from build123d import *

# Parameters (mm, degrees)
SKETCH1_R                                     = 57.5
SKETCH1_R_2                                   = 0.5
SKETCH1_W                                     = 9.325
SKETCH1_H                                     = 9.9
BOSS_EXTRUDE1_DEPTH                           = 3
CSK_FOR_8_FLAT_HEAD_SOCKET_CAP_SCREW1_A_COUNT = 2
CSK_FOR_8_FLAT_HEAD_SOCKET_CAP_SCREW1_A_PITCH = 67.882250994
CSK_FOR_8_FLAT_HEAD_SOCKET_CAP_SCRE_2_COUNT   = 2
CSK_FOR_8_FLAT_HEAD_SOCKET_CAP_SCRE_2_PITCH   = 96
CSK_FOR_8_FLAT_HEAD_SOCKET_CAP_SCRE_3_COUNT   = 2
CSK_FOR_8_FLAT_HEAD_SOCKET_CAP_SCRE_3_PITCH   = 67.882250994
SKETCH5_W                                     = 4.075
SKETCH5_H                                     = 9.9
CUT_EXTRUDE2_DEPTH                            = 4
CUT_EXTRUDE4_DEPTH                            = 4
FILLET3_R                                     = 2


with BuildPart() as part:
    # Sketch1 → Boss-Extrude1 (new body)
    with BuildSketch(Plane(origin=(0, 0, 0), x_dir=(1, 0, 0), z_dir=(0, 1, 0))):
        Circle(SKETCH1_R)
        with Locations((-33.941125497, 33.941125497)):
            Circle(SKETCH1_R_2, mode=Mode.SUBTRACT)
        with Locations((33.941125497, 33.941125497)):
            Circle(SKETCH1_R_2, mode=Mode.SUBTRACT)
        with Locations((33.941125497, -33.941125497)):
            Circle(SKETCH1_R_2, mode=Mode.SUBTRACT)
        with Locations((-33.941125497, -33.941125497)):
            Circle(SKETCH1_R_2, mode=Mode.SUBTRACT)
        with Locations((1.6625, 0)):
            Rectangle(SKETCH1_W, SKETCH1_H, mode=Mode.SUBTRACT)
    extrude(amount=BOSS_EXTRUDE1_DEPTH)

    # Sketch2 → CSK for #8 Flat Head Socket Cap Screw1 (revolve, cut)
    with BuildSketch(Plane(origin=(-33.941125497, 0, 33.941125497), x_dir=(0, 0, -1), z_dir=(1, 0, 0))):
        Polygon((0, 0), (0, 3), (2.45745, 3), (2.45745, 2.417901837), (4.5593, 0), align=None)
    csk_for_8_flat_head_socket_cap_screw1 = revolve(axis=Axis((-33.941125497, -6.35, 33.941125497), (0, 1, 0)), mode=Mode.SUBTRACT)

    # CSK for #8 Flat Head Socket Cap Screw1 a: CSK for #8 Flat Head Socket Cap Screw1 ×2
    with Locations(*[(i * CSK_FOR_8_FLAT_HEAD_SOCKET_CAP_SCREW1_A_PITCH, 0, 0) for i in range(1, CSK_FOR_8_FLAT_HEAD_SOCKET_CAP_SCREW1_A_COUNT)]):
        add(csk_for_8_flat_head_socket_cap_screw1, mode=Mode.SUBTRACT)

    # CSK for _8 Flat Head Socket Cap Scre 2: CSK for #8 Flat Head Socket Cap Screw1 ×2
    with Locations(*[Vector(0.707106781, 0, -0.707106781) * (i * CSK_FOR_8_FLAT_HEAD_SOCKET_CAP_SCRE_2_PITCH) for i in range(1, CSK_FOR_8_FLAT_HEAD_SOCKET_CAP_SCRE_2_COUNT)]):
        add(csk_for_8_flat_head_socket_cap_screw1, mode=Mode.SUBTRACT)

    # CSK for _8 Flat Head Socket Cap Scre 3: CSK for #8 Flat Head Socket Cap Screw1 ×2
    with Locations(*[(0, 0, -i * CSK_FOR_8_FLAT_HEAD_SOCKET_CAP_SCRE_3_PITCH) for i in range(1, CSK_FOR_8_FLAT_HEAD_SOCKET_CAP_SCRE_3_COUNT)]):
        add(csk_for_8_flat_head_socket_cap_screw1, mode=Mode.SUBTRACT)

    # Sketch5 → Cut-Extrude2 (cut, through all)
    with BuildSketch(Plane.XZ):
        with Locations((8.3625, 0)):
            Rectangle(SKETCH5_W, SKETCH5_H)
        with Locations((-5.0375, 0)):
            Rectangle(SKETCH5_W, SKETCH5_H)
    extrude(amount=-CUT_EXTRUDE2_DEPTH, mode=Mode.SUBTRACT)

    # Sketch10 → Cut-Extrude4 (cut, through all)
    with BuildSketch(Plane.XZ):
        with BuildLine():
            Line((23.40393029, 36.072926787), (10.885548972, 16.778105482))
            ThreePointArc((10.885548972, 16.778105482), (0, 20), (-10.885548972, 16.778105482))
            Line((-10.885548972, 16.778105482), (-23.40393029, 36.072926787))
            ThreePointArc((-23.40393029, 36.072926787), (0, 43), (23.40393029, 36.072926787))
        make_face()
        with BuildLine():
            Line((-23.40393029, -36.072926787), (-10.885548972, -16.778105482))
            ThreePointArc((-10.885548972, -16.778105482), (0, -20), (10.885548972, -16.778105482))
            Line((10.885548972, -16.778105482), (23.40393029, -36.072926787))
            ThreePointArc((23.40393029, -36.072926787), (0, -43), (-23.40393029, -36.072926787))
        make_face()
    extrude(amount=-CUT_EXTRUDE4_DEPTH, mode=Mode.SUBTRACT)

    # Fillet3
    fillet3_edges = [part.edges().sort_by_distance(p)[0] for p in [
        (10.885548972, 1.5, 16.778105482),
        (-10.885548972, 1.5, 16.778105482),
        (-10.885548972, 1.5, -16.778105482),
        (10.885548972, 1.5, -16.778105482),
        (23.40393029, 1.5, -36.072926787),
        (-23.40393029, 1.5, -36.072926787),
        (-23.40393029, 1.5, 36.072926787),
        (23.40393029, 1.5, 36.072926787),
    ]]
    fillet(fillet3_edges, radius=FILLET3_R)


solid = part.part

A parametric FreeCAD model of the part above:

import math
import FreeCAD as App
import Part
import Sketcher

V = App.Vector
Q = App.Units.Quantity


def edges_at(feature, points):
    """Names of the edges that pass closest to the given points."""
    edges = feature.Shape.Edges
    near = lambda p: min(range(len(edges)), key=lambda i: edges[i].distToShape(Part.Vertex(*p))[0])
    return sorted({f"Edge{near(p) + 1}" for p in points})

doc = App.newDocument("Part")
body = doc.addObject("PartDesign::Body", "Body")

# Sketch on XZ plane
sketch1 = body.newObject("Sketcher::SketchObject", "Sketch")
sketch1.AttachmentSupport = (doc.getObject("XZ_Plane"), [""])
sketch1.MapMode = "FlatFace"
sketch1.addGeometry(Part.Circle(V(0, 0, 0), V(0, 0, 1), 57.5), False)
sketch1.addGeometry(Part.Circle(V(-33.9, 33.9, 0), V(0, 0, 1), 0.5), False)
sketch1.addGeometry(Part.Circle(V(33.9, 33.9, 0), V(0, 0, 1), 0.5), False)
sketch1.addGeometry(Part.Circle(V(-33.9, -33.9, 0), V(0, 0, 1), 0.5), False)
sketch1.addGeometry(Part.LineSegment(V(6.3, 5, 0), V(-3, 5, 0)), False)
sketch1.addGeometry(Part.LineSegment(V(-3, 5, 0), V(-3, -5, 0)), False)
sketch1.addGeometry(Part.LineSegment(V(-3, -5, 0), V(6.3, -5, 0)), False)
sketch1.addGeometry(Part.LineSegment(V(6.3, -5, 0), V(6.3, 5, 0)), False)
sketch1.addGeometry(Part.Circle(V(33.9, -33.9, 0), V(0, 0, 1), 0.5), False)
sketch1.addConstraint(Sketcher.Constraint("Coincident", 4, 2, 5, 1))
sketch1.addConstraint(Sketcher.Constraint("Coincident", 5, 2, 6, 1))
sketch1.addConstraint(Sketcher.Constraint("Coincident", 6, 2, 7, 1))
sketch1.addConstraint(Sketcher.Constraint("Coincident", 7, 2, 4, 1))
sketch1.addConstraint(Sketcher.Constraint("Horizontal", 4))
sketch1.addConstraint(Sketcher.Constraint("Vertical", 5))
sketch1.addConstraint(Sketcher.Constraint("Horizontal", 6))
sketch1.addConstraint(Sketcher.Constraint("Vertical", 7))
sketch1.addConstraint(Sketcher.Constraint("Coincident", 0, 3, -1, 1))
sketch1.addConstraint(Sketcher.Constraint("Equal", 1, 2))
sketch1.addConstraint(Sketcher.Constraint("Equal", 2, 3))
sketch1.addConstraint(Sketcher.Constraint("Equal", 3, 8))
sketch1.addConstraint(Sketcher.Constraint("Symmetric", 2, 3, 3, 3, -1, 1))
sketch1.addConstraint(Sketcher.Constraint("Symmetric", 1, 3, 8, 3, -1, 1))
sketch1.addConstraint(Sketcher.Constraint("Symmetric", 1, 3, 2, 3, -2))
sketch1.addConstraint(Sketcher.Constraint("Diameter", 0, Q("115 mm")))
sketch1.addConstraint(Sketcher.Constraint("Diameter", 1, Q("1 mm")))
sketch1.addConstraint(Sketcher.Constraint("DistanceY", 5, 2, 5, 1, Q("9.9 mm")))
sketch1.addConstraint(Sketcher.Constraint("DistanceX", 4, 2, -1, 1, Q("3 mm")))
sketch1.addConstraint(Sketcher.Constraint("DistanceX", 4, 2, 4, 1, Q("9.325 mm")))
sketch1.addConstraint(Sketcher.Constraint("DistanceY", -1, 1, 4, 2, Q("4.95 mm")))
sketch1.addConstraint(Sketcher.Constraint("DistanceX", 1, 3, 2, 3, Q("67.882251 mm")))
sketch1.addConstraint(Sketcher.Constraint("DistanceY", 3, 3, 1, 3, Q("67.882251 mm")))
pad1 = body.newObject("PartDesign::Pad", "Pad")
pad1.Profile = sketch1
pad1.Length = 3
pad1.Reversed = True

# Sketch on YZ plane
sketch2 = body.newObject("Sketcher::SketchObject", "Sketch001")
sketch2.AttachmentSupport = (doc.getObject("YZ_Plane"), [""])
sketch2.MapMode = "FlatFace"
sketch2.AttachmentOffset = App.Placement(V(0, 0, -33.941125), App.Rotation())
sketch2.addGeometry(Part.LineSegment(V(3, 33.9, 0), V(0, 33.9, 0)), False)
sketch2.addGeometry(Part.LineSegment(V(0, 33.9, 0), V(0, 29.4, 0)), False)
sketch2.addGeometry(Part.LineSegment(V(0, 29.4, 0), V(2.4, 31.5, 0)), False)
sketch2.addGeometry(Part.LineSegment(V(2.4, 31.5, 0), V(3, 31.5, 0)), False)
sketch2.addGeometry(Part.LineSegment(V(3, 31.5, 0), V(3, 33.9, 0)), False)
sketch2.addGeometry(Part.LineSegment(V(0, 33.9, 0), V(3, 33.9, 0)), True)  # axis
sketch2.addConstraint(Sketcher.Constraint("Coincident", 0, 2, 1, 1))
sketch2.addConstraint(Sketcher.Constraint("Coincident", 1, 2, 2, 1))
sketch2.addConstraint(Sketcher.Constraint("Coincident", 2, 2, 3, 1))
sketch2.addConstraint(Sketcher.Constraint("Coincident", 3, 2, 4, 1))
sketch2.addConstraint(Sketcher.Constraint("Coincident", 4, 2, 0, 1))
sketch2.addConstraint(Sketcher.Constraint("Horizontal", 0))
sketch2.addConstraint(Sketcher.Constraint("Vertical", 1))
sketch2.addConstraint(Sketcher.Constraint("Horizontal", 3))
sketch2.addConstraint(Sketcher.Constraint("Vertical", 4))
sketch2.addConstraint(Sketcher.Constraint("Horizontal", 5))
sketch2.addConstraint(Sketcher.Constraint("Coincident", 5, 1, 0, 2))
sketch2.addConstraint(Sketcher.Constraint("PointOnObject", 0, 2, -2))
sketch2.addConstraint(Sketcher.Constraint("Vertical", 3, 2, 5, 2))
sketch2.addConstraint(Sketcher.Constraint("DistanceX", 0, 2, 0, 1, Q("3 mm")))
sketch2.addConstraint(Sketcher.Constraint("Angle", 2, Q("41 deg")))
sketch2.addConstraint(Sketcher.Constraint("DistanceX", 3, 1, 3, 2, Q("0.582098 mm")))
sketch2.addConstraint(Sketcher.Constraint("DistanceY", 1, 2, 1, 1, Q("4.5593 mm")))
sketch2.addConstraint(Sketcher.Constraint("DistanceY", -1, 1, 0, 2, Q("33.941125 mm")))
groove = body.newObject("PartDesign::Groove", "Groove")
groove.Profile = sketch2
groove.ReferenceAxis = (sketch2, ["Axis0"])
groove.Angle = 360
doc.recompute()

linearpattern = body.newObject("PartDesign::LinearPattern", "LinearPattern")
linearpattern.Originals = [groove]
linearpattern.Direction = (doc.getObject("X_Axis"), [""])
linearpattern.Mode = "offset"
linearpattern.Offset = 67.882251
linearpattern.Occurrences = 2
body.Tip = linearpattern
doc.recompute()

datumline = body.newObject("PartDesign::Line", "DatumLine")
datumline.Placement = App.Placement(V(0, 0, 0), App.Rotation(V(0, 0, 1), V(0.707106781, 0, -0.707106781)))
linearpattern2 = body.newObject("PartDesign::LinearPattern", "LinearPattern001")
linearpattern2.Originals = [groove]
linearpattern2.Direction = (datumline, [""])
linearpattern2.Mode = "offset"
linearpattern2.Offset = 96
linearpattern2.Occurrences = 2
body.Tip = linearpattern2
doc.recompute()

linearpattern3 = body.newObject("PartDesign::LinearPattern", "LinearPattern002")
linearpattern3.Originals = [groove]
linearpattern3.Direction = (doc.getObject("Z_Axis"), [""])
linearpattern3.Mode = "offset"
linearpattern3.Offset = 67.882251
linearpattern3.Occurrences = 2
linearpattern3.Reversed = True
body.Tip = linearpattern3

# Sketch on XZ plane
sketch3 = body.newObject("Sketcher::SketchObject", "Sketch002")
sketch3.AttachmentSupport = (doc.getObject("XZ_Plane"), [""])
sketch3.MapMode = "FlatFace"
sketch3.addGeometry(Part.LineSegment(V(6.3, 5, 0), V(6.3, -5, 0)), False)
sketch3.addGeometry(Part.LineSegment(V(6.3, -5, 0), V(10.4, -5, 0)), False)
sketch3.addGeometry(Part.LineSegment(V(10.4, -5, 0), V(10.4, 5, 0)), False)
sketch3.addGeometry(Part.LineSegment(V(10.4, 5, 0), V(6.3, 5, 0)), False)
sketch3.addGeometry(Part.LineSegment(V(-7.1, 5, 0), V(-7.1, -5, 0)), False)
sketch3.addGeometry(Part.LineSegment(V(-7.1, -5, 0), V(-3, -5, 0)), False)
sketch3.addGeometry(Part.LineSegment(V(-3, -5, 0), V(-3, 5, 0)), False)
sketch3.addGeometry(Part.LineSegment(V(-3, 5, 0), V(-7.1, 5, 0)), False)
sketch3.addConstraint(Sketcher.Constraint("Coincident", 0, 2, 1, 1))
sketch3.addConstraint(Sketcher.Constraint("Coincident", 1, 2, 2, 1))
sketch3.addConstraint(Sketcher.Constraint("Coincident", 2, 2, 3, 1))
sketch3.addConstraint(Sketcher.Constraint("Coincident", 3, 2, 0, 1))
sketch3.addConstraint(Sketcher.Constraint("Coincident", 4, 2, 5, 1))
sketch3.addConstraint(Sketcher.Constraint("Coincident", 5, 2, 6, 1))
sketch3.addConstraint(Sketcher.Constraint("Coincident", 6, 2, 7, 1))
sketch3.addConstraint(Sketcher.Constraint("Coincident", 7, 2, 4, 1))
sketch3.addConstraint(Sketcher.Constraint("Vertical", 0))
sketch3.addConstraint(Sketcher.Constraint("Horizontal", 1))
sketch3.addConstraint(Sketcher.Constraint("Vertical", 2))
sketch3.addConstraint(Sketcher.Constraint("Horizontal", 3))
sketch3.addConstraint(Sketcher.Constraint("Vertical", 4))
sketch3.addConstraint(Sketcher.Constraint("Horizontal", 5))
sketch3.addConstraint(Sketcher.Constraint("Vertical", 6))
sketch3.addConstraint(Sketcher.Constraint("Horizontal", 7))
sketch3.addConstraint(Sketcher.Constraint("Horizontal", 1, 2, 4, 2))
sketch3.addConstraint(Sketcher.Constraint("Horizontal", 3, 2, 6, 2))
sketch3.addConstraint(Sketcher.Constraint("Equal", 3, 5))
sketch3.addConstraint(Sketcher.Constraint("DistanceY", 0, 2, 0, 1, Q("9.9 mm")))
sketch3.addConstraint(Sketcher.Constraint("DistanceX", 5, 2, -1, 1, Q("3 mm")))
sketch3.addConstraint(Sketcher.Constraint("DistanceX", -1, 1, 1, 2, Q("10.4 mm")))
sketch3.addConstraint(Sketcher.Constraint("DistanceX", 1, 1, 1, 2, Q("4.075 mm")))
sketch3.addConstraint(Sketcher.Constraint("DistanceY", 0, 2, -1, 1, Q("4.95 mm")))
pocket1 = body.newObject("PartDesign::Pocket", "Pocket")
pocket1.Profile = sketch3
pocket1.Type = "ThroughAll"

# Sketch on XZ plane
sketch4 = body.newObject("Sketcher::SketchObject", "Sketch003")
sketch4.AttachmentSupport = (doc.getObject("XZ_Plane"), [""])
sketch4.MapMode = "FlatFace"
sketch4.addGeometry(Part.LineSegment(V(11, 17, 0), V(23, 36, 0)), False)
sketch4.addGeometry(Part.ArcOfCircle(Part.Circle(V(0, 0, 0), V(0, 0, 1), 43), math.radians(57), math.radians(123)), False)
sketch4.addGeometry(Part.LineSegment(V(-23, 36, 0), V(-11, 17, 0)), False)
sketch4.addGeometry(Part.ArcOfCircle(Part.Circle(V(0, 0, 0), V(0, 0, 1), 20), math.radians(57), math.radians(123)), False)
sketch4.addGeometry(Part.LineSegment(V(-11, -17, 0), V(-23, -36, 0)), False)
sketch4.addGeometry(Part.ArcOfCircle(Part.Circle(V(0, 0, 0), V(0, 0, 1), 43), math.radians(-123), math.radians(-57)), False)
sketch4.addGeometry(Part.LineSegment(V(23, -36, 0), V(11, -17, 0)), False)
sketch4.addGeometry(Part.ArcOfCircle(Part.Circle(V(0, 0, 0), V(0, 0, 1), 20), math.radians(-123), math.radians(-57)), False)
sketch4.addConstraint(Sketcher.Constraint("Coincident", 0, 2, 1, 1))
sketch4.addConstraint(Sketcher.Constraint("Coincident", 1, 2, 2, 1))
sketch4.addConstraint(Sketcher.Constraint("Coincident", 2, 2, 3, 2))
sketch4.addConstraint(Sketcher.Constraint("Coincident", 3, 1, 0, 1))
sketch4.addConstraint(Sketcher.Constraint("Coincident", 4, 2, 5, 1))
sketch4.addConstraint(Sketcher.Constraint("Coincident", 5, 2, 6, 1))
sketch4.addConstraint(Sketcher.Constraint("Coincident", 6, 2, 7, 2))
sketch4.addConstraint(Sketcher.Constraint("Coincident", 7, 1, 4, 1))
sketch4.addConstraint(Sketcher.Constraint("Coincident", 1, 3, -1, 1))
sketch4.addConstraint(Sketcher.Constraint("Coincident", 3, 3, -1, 1))
sketch4.addConstraint(Sketcher.Constraint("Coincident", 5, 3, -1, 1))
sketch4.addConstraint(Sketcher.Constraint("Coincident", 7, 3, -1, 1))
sketch4.addConstraint(Sketcher.Constraint("Equal", 1, 5))
sketch4.addConstraint(Sketcher.Constraint("Equal", 3, 7))
sketch4.addConstraint(Sketcher.Constraint("Parallel", 0, 4))
sketch4.addConstraint(Sketcher.Constraint("Parallel", 2, 6))
sketch4.addConstraint(Sketcher.Constraint("Horizontal", 0, 2, 1, 2))
sketch4.addConstraint(Sketcher.Constraint("Horizontal", 2, 2, 3, 1))
sketch4.addConstraint(Sketcher.Constraint("Horizontal", 4, 2, 5, 2))
sketch4.addConstraint(Sketcher.Constraint("Vertical", 1, 2, 4, 2))
sketch4.addConstraint(Sketcher.Constraint("Radius", 1, Q("43 mm")))
sketch4.addConstraint(Sketcher.Constraint("Radius", 3, Q("20 mm")))
sketch4.addConstraint(Sketcher.Constraint("DistanceX", -1, 1, 0, 2, Q("23.40393 mm")))
sketch4.addConstraint(Sketcher.Constraint("DistanceX", 2, 2, -1, 1, Q("10.885549 mm")))
pocket2 = body.newObject("PartDesign::Pocket", "Pocket001")
pocket2.Profile = sketch4
pocket2.Type = "ThroughAll"
doc.recompute()

fillet = body.newObject("PartDesign::Fillet", "Fillet")
fillet.Base = (pocket2, edges_at(pocket2, [
    (10.886, 1.5, 16.778),
    (-10.886, 1.5, 16.778),
    (-10.886, 1.5, -16.778),
    (10.886, 1.5, -16.778),
    (23.404, 1.5, -36.073),
    (-23.404, 1.5, -36.073),
    (-23.404, 1.5, 36.073),
    (23.404, 1.5, 36.073),
]))
fillet.Radius = 2

doc.recompute()
